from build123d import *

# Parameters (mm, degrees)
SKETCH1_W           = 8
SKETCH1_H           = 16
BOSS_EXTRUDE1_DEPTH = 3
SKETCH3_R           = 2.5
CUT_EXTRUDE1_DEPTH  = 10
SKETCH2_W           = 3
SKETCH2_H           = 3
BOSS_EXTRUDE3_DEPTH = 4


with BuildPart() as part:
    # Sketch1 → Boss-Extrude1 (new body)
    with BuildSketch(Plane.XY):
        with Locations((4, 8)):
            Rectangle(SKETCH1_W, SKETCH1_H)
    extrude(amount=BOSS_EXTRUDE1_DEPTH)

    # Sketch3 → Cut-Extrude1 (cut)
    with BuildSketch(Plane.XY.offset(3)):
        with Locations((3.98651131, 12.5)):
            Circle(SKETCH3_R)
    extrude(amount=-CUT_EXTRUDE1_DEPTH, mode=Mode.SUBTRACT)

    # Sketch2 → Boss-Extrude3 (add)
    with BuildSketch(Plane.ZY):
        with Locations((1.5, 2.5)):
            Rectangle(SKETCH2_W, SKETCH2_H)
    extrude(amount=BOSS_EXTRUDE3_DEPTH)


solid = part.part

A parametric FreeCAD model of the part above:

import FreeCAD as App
import Part
import Sketcher


def add_polygon(sketch, points):
    """Adds a closed chain of lines whose ends are joined by coincident constraints."""
    first, n = sketch.GeometryCount, len(points)
    for a, b in zip(points, points[1:] + points[:1]):
        sketch.addGeometry(Part.LineSegment(App.Vector(*a, 0), App.Vector(*b, 0)), False)
    for i in range(n):
        sketch.addConstraint(Sketcher.Constraint("Coincident", first + i, 2, first + (i + 1) % n, 1))

doc = App.newDocument("Part")
body = doc.addObject("PartDesign::Body", "Body")

sketch1 = body.newObject("Sketcher::SketchObject", "Sketch")
sketch1.AttachmentSupport = (doc.getObject("XY_Plane"), [""])
sketch1.MapMode = "FlatFace"
add_polygon(sketch1, [(0, 16), (0, 0), (8, 0), (8, 16)])
sketch1.addConstraint(Sketcher.Constraint("Vertical", 0))
sketch1.addConstraint(Sketcher.Constraint("Horizontal", 1))
sketch1.addConstraint(Sketcher.Constraint("Vertical", 2))
sketch1.addConstraint(Sketcher.Constraint("Horizontal", 3))
sketch1.addConstraint(Sketcher.Constraint("Coincident", 0, 2, -1, 1))
sketch1.addConstraint(Sketcher.Constraint("DistanceX", 1, 1, 1, 2, 8.0))
sketch1.addConstraint(Sketcher.Constraint("DistanceY", 0, 2, 0, 1, 16.0))
pad1 = body.newObject("PartDesign::Pad", "Pad")
pad1.Profile = sketch1
pad1.Length = 3

sketch2 = body.newObject("Sketcher::SketchObject", "Sketch001")
sketch2.AttachmentSupport = (doc.getObject("XY_Plane"), [""])
sketch2.MapMode = "FlatFace"
sketch2.AttachmentOffset = App.Placement(App.Vector(0, 0, 3), App.Rotation())
sketch2.addGeometry(Part.Circle(App.Vector(4, 12.5, 0), App.Vector(0, 0, 1), 2.5), False)
sketch2.addConstraint(Sketcher.Constraint("Diameter", 0, 5.0))
sketch2.addConstraint(Sketcher.Constraint("DistanceY", -1, 1, 0, 3, 12.5))
sketch2.addConstraint(Sketcher.Constraint("DistanceX", -1, 1, 0, 3, 3.986511))
pocket1 = body.newObject("PartDesign::Pocket", "Pocket")
pocket1.Profile = sketch2
pocket1.Length = 10

sketch3 = body.newObject("Sketcher::SketchObject", "Sketch002")
sketch3.AttachmentSupport = (doc.getObject("YZ_Plane"), [""])
sketch3.MapMode = "FlatFace"
add_polygon(sketch3, [(4, 0), (1, 0), (1, 3), (4, 3)])
sketch3.addConstraint(Sketcher.Constraint("Horizontal", 0))
sketch3.addConstraint(Sketcher.Constraint("Vertical", 1))
sketch3.addConstraint(Sketcher.Constraint("Horizontal", 2))
sketch3.addConstraint(Sketcher.Constraint("Vertical", 3))
sketch3.addConstraint(Sketcher.Constraint("PointOnObject", 0, 2, -1))
sketch3.addConstraint(Sketcher.Constraint("Equal", 2, 1))
sketch3.addConstraint(Sketcher.Constraint("DistanceX", 0, 2, 0, 1, 3.0))
sketch3.addConstraint(Sketcher.Constraint("DistanceX", -1, 1, 0, 2, 1.0))
pad2 = body.newObject("PartDesign::Pad", "Pad001")
pad2.Profile = sketch3
pad2.Length = 4
pad2.Reversed = True

doc.recompute()
